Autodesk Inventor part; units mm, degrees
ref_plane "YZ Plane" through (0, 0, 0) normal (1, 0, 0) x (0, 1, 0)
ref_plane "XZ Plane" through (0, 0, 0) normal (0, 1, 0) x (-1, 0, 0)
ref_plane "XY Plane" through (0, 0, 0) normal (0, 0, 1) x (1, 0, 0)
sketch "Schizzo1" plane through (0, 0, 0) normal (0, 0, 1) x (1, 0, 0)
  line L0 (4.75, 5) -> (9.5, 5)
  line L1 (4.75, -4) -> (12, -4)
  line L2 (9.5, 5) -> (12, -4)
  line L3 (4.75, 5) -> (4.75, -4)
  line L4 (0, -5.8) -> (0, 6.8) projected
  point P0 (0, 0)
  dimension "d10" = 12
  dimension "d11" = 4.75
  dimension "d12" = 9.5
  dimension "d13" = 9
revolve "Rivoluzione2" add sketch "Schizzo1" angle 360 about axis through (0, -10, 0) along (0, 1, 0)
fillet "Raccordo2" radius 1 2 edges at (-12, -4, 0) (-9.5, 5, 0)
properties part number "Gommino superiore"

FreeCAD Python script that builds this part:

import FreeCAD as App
import Part
import Sketcher
from FreeCAD import Vector


def edges_at(feature, points):
    """Names of the edges that pass closest to the given points."""
    edges = feature.Shape.Edges
    near = lambda p: min(range(len(edges)), key=lambda i: edges[i].distToShape(Part.Vertex(*p))[0])
    return sorted({f"Edge{near(p) + 1}" for p in points})

doc = App.newDocument("Part")
body = doc.addObject("PartDesign::Body", "Body")

# Sketch on XY plane
sketch1 = body.newObject("Sketcher::SketchObject", "Sketch")
sketch1.AttachmentSupport = (doc.getObject("XY_Plane"), [""])
sketch1.MapMode = "FlatFace"
sketch1.addGeometry([
    Part.LineSegment(Vector(9.5, 5, 0), Vector(4.8, 5, 0)),
    Part.LineSegment(Vector(4.8, 5, 0), Vector(4.8, -4, 0)),
    Part.LineSegment(Vector(4.8, -4, 0), Vector(12, -4, 0)),
    Part.LineSegment(Vector(12, -4, 0), Vector(9.5, 5, 0)),
], False)
sketch1.addConstraint([
    Sketcher.Constraint("Coincident", 0, 2, 1, 1),
    Sketcher.Constraint("Coincident", 1, 2, 2, 1),
    Sketcher.Constraint("Coincident", 2, 2, 3, 1),
    Sketcher.Constraint("Coincident", 3, 2, 0, 1),
    Sketcher.Constraint("Horizontal", 0),
    Sketcher.Constraint("Vertical", 1),
    Sketcher.Constraint("Horizontal", 2),
    Sketcher.Constraint("DistanceY", 1, 2, 1, 1, 9.0),
    Sketcher.Constraint("DistanceX", -1, 1, 2, 2, 12.0),
    Sketcher.Constraint("DistanceX", 0, 2, 0, 1, 4.75),
    Sketcher.Constraint("DistanceX", -1, 1, 3, 2, 9.5),
    Sketcher.Constraint("DistanceY", -1, 1, 0, 2, 5.0),
])
revolution = body.newObject("PartDesign::Revolution", "Revolution")
revolution.Profile = sketch1
revolution.ReferenceAxis = (sketch1, ["V_Axis"])
revolution.Angle = 360
doc.recompute()

fillet = body.newObject("PartDesign::Fillet", "Fillet")
fillet.Base = (revolution, edges_at(revolution, [(-12, -4, 0), (-9.5, 5, 0)]))
fillet.Radius = 1

doc.recompute()
